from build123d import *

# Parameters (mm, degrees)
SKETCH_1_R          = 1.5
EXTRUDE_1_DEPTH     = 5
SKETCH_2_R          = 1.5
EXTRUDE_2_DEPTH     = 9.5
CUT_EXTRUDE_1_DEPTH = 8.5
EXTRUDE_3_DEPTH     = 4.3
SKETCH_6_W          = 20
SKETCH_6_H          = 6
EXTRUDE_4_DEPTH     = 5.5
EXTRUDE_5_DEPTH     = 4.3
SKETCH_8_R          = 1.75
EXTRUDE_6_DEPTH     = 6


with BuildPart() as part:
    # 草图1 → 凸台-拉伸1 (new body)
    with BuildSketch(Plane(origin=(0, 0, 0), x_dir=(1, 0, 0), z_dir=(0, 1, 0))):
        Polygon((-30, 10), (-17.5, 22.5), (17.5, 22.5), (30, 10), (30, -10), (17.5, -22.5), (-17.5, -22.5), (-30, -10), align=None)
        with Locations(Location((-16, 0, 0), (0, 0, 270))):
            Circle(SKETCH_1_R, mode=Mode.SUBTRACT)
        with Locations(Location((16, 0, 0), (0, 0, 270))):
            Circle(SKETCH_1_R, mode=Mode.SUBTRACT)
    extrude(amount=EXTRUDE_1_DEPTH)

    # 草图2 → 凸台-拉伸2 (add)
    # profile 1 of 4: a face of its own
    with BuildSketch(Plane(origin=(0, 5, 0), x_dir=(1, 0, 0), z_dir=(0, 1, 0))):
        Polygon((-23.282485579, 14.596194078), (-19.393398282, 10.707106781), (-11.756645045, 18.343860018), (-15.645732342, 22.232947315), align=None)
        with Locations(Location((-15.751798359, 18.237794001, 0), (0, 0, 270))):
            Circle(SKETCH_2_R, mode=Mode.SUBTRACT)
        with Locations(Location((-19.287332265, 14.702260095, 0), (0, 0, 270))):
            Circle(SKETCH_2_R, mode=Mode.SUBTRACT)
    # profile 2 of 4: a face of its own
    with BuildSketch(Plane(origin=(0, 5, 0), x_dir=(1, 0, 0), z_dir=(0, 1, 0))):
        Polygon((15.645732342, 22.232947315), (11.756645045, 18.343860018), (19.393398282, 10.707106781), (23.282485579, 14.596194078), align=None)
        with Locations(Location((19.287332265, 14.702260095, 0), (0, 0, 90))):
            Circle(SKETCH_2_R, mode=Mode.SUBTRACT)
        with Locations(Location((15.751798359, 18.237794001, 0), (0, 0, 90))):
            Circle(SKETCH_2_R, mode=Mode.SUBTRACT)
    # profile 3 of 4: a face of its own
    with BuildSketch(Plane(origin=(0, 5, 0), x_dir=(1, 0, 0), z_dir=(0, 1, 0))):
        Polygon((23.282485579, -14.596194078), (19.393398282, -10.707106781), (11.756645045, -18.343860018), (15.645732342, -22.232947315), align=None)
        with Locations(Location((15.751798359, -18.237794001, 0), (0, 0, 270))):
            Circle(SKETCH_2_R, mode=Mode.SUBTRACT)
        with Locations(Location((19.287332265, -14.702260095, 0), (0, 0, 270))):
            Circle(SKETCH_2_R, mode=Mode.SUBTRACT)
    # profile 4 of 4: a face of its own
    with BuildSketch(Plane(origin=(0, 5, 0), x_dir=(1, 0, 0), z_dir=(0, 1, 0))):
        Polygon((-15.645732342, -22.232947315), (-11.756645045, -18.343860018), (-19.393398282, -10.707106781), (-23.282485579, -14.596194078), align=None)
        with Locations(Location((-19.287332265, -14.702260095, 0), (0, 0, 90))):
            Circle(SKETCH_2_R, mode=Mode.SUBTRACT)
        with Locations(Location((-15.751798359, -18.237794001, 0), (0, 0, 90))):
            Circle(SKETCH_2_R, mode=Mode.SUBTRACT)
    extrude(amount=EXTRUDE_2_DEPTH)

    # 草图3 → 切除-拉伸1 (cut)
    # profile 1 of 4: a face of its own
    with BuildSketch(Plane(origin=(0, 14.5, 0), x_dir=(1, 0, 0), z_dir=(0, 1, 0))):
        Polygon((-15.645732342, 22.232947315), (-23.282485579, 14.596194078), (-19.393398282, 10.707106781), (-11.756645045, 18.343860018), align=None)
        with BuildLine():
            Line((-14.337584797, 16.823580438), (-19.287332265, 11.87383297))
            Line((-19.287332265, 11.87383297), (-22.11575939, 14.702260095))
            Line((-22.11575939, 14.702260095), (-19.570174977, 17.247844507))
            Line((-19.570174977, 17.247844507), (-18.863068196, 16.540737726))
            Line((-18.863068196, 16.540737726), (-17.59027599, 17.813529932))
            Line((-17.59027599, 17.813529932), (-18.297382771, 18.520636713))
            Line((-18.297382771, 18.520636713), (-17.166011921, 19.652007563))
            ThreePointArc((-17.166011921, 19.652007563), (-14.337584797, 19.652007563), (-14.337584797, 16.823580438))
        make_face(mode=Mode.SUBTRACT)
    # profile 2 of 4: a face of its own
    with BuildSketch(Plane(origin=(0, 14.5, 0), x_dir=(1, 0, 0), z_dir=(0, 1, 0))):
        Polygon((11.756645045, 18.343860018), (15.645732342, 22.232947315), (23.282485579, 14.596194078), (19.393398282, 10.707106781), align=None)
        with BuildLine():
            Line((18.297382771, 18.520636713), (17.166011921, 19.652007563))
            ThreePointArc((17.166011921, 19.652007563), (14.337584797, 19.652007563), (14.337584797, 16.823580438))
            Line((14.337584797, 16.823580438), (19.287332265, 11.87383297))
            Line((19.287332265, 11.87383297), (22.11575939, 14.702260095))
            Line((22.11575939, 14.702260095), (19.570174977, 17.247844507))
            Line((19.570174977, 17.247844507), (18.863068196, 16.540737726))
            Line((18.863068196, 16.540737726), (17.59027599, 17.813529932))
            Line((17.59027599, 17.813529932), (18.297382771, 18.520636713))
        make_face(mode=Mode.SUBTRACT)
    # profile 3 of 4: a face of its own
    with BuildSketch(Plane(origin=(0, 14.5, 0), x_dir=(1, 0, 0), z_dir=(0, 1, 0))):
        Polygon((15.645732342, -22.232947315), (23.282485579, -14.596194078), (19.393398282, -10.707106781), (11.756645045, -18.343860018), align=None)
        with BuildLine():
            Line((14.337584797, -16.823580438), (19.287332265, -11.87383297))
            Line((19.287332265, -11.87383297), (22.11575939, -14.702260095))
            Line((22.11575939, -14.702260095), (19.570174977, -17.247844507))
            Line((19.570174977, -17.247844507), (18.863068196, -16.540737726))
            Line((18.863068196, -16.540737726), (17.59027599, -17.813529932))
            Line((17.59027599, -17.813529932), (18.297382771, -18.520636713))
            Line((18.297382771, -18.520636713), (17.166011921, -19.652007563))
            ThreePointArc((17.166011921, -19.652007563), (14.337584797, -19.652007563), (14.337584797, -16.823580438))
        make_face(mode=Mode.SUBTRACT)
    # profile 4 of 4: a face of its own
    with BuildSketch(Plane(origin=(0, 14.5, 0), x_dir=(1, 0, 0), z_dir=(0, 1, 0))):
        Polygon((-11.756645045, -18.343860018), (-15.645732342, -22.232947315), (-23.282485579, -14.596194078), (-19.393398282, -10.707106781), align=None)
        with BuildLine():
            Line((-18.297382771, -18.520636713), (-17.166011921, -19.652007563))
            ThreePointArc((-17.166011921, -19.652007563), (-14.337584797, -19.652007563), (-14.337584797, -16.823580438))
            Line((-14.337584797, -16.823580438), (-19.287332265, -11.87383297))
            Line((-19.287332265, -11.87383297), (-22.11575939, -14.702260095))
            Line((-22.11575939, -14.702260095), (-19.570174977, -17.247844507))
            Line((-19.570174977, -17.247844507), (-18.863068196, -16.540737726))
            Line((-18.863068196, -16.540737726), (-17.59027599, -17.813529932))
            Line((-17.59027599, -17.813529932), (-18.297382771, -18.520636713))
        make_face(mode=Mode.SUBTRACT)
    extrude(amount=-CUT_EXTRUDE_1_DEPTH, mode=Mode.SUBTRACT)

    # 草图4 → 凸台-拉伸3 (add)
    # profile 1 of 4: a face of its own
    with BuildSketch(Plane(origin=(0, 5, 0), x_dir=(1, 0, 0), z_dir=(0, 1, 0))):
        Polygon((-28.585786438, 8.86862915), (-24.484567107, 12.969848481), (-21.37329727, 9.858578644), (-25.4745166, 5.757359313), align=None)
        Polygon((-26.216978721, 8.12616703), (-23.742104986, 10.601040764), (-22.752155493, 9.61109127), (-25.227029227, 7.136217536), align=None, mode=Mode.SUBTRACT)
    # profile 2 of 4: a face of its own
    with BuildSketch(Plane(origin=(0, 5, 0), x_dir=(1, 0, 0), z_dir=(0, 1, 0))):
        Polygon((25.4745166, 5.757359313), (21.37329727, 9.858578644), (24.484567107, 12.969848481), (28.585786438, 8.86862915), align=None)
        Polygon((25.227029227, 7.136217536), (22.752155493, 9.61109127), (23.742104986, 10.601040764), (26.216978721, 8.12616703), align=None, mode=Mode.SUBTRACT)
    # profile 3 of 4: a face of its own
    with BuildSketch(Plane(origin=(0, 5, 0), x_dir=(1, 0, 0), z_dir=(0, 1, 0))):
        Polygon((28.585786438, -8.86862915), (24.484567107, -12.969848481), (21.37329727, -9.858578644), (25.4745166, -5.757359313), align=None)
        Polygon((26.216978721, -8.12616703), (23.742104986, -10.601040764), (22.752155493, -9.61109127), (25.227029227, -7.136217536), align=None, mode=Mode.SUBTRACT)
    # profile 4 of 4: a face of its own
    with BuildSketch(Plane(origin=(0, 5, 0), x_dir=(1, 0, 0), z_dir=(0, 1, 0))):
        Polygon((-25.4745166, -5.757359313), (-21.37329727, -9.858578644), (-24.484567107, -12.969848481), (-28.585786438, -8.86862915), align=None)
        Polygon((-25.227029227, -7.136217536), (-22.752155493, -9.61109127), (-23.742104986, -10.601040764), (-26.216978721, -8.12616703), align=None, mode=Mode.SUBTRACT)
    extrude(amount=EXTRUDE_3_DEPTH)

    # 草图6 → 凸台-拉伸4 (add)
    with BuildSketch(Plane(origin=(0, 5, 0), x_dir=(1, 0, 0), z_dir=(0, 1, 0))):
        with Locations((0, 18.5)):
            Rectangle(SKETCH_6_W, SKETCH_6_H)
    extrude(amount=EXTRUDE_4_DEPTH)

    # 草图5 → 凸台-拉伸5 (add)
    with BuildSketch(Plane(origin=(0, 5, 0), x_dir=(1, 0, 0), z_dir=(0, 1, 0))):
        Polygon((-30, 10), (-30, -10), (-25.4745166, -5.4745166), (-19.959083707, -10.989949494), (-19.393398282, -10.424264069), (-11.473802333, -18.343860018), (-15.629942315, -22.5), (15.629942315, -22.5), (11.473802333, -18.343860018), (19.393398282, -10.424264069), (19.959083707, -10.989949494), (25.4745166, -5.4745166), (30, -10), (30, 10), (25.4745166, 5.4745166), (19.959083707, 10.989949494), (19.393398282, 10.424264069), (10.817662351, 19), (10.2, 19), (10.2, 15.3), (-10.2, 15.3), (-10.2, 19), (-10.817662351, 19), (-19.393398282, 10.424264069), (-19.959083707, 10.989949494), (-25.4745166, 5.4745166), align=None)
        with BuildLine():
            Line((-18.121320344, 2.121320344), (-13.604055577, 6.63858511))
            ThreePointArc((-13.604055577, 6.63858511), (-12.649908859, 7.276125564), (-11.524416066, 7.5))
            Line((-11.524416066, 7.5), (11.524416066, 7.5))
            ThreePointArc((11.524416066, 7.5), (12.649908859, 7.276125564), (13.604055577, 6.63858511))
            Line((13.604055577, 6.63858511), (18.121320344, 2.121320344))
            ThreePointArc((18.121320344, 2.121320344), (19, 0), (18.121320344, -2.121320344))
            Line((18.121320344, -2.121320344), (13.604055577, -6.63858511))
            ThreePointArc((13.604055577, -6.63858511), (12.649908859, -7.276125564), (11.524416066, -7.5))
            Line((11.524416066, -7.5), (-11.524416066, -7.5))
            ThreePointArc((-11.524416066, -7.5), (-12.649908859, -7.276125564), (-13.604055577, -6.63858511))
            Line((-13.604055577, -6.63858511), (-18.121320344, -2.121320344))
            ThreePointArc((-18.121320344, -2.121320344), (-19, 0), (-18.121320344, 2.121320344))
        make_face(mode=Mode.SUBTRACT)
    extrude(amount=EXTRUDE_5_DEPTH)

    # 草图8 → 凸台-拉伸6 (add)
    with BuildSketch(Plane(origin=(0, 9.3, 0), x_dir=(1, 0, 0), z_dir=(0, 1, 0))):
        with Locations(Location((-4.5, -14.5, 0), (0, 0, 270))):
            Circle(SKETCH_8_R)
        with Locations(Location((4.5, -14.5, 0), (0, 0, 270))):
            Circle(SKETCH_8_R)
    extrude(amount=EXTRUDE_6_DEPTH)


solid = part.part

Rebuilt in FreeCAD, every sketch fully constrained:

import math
import FreeCAD as App
import Part
import Sketcher

doc = App.newDocument("Part")
body = doc.addObject("PartDesign::Body", "Body")

sketch1 = body.newObject("Sketcher::SketchObject", "Sketch")
sketch1.AttachmentSupport = (doc.getObject("XZ_Plane"), [""])
sketch1.MapMode = "FlatFace"
sketch1.addGeometry([
    Part.LineSegment(App.Vector(-17.5, -22.5, 0), App.Vector(-30, -10, 0)),
    Part.LineSegment(App.Vector(-30, -10, 0), App.Vector(-30, 10, 0)),
    Part.LineSegment(App.Vector(-30, 10, 0), App.Vector(-17.5, 22.5, 0)),
    Part.LineSegment(App.Vector(-17.5, 22.5, 0), App.Vector(17.5, 22.5, 0)),
    Part.LineSegment(App.Vector(17.5, 22.5, 0), App.Vector(30, 10, 0)),
    Part.LineSegment(App.Vector(30, 10, 0), App.Vector(30, -10, 0)),
    Part.LineSegment(App.Vector(30, -10, 0), App.Vector(17.5, -22.5, 0)),
    Part.LineSegment(App.Vector(17.5, -22.5, 0), App.Vector(-17.5, -22.5, 0)),
    Part.Circle(App.Vector(16, 0, 0), App.Vector(0, 0, 1), 1.5),
    Part.Circle(App.Vector(-16, 0, 0), App.Vector(0, 0, 1), 1.5),
], False)
sketch1.addConstraint([
    Sketcher.Constraint("Coincident", 0, 2, 1, 1),
    Sketcher.Constraint("Coincident", 1, 2, 2, 1),
    Sketcher.Constraint("Coincident", 2, 2, 3, 1),
    Sketcher.Constraint("Coincident", 3, 2, 4, 1),
    Sketcher.Constraint("Coincident", 4, 2, 5, 1),
    Sketcher.Constraint("Coincident", 5, 2, 6, 1),
    Sketcher.Constraint("Coincident", 6, 2, 7, 1),
    Sketcher.Constraint("Coincident", 7, 2, 0, 1),
    Sketcher.Constraint("Vertical", 1),
    Sketcher.Constraint("Horizontal", 3),
    Sketcher.Constraint("Vertical", 5),
    Sketcher.Constraint("Horizontal", 7),
    Sketcher.Constraint("Equal", 8, 9),
    Sketcher.Constraint("Symmetric", 8, 3, 9, 3, -1, 1),
    Sketcher.Constraint("Symmetric", 0, 2, 4, 2, -1, 1),
    Sketcher.Constraint("Symmetric", 2, 2, 6, 2, -1, 1),
    Sketcher.Constraint("PointOnObject", 8, 3, -1),
    Sketcher.Constraint("Perpendicular", 0, 2),
    Sketcher.Constraint("Perpendicular", 2, 4),
    Sketcher.Constraint("Perpendicular", 4, 6),
    Sketcher.Constraint("Horizontal", 1, 2, 4, 2),
    Sketcher.Constraint("Vertical", 3, 2, 6, 2),
    Sketcher.Constraint("Diameter", 8, 3.0),
    Sketcher.Constraint("DistanceX", 3, 1, 3, 2, 35.0),
    Sketcher.Constraint("DistanceY", 1, 1, 1, 2, 20.0),
    Sketcher.Constraint("DistanceX", -1, 1, 8, 3, 16.0),
    Sketcher.Constraint("DistanceX", 0, 2, -1, 1, 30.0),
])
pad1 = body.newObject("PartDesign::Pad", "Pad")
pad1.Profile = sketch1
pad1.Length = 5
pad1.Reversed = True

sketch2 = body.newObject("Sketcher::SketchObject", "Sketch001")
sketch2.AttachmentSupport = (doc.getObject("XZ_Plane"), [""])
sketch2.MapMode = "FlatFace"
sketch2.AttachmentOffset = App.Placement(App.Vector(0, 0, -5), App.Rotation())
sketch2.addGeometry([
    Part.LineSegment(App.Vector(-23.3, -14.6, 0), App.Vector(-19.4, -10.7, 0)),
    Part.LineSegment(App.Vector(-19.4, -10.7, 0), App.Vector(-11.8, -18.3, 0)),
    Part.LineSegment(App.Vector(-11.8, -18.3, 0), App.Vector(-15.6, -22.2, 0)),
    Part.LineSegment(App.Vector(-15.6, -22.2, 0), App.Vector(-23.3, -14.6, 0)),
    Part.Circle(App.Vector(-19.3, -14.7, 0), App.Vector(0, 0, 1), 1.5),
    Part.Circle(App.Vector(-15.8, -18.2, 0), App.Vector(0, 0, 1), 1.5),
    Part.LineSegment(App.Vector(15.6, -22.2, 0), App.Vector(11.8, -18.3, 0)),
    Part.LineSegment(App.Vector(11.8, -18.3, 0), App.Vector(19.4, -10.7, 0)),
    Part.LineSegment(App.Vector(19.4, -10.7, 0), App.Vector(23.3, -14.6, 0)),
    Part.LineSegment(App.Vector(23.3, -14.6, 0), App.Vector(15.6, -22.2, 0)),
    Part.Circle(App.Vector(19.3, -14.7, 0), App.Vector(0, 0, 1), 1.5),
    Part.Circle(App.Vector(15.8, -18.2, 0), App.Vector(0, 0, 1), 1.5),
    Part.LineSegment(App.Vector(23.3, 14.6, 0), App.Vector(19.4, 10.7, 0)),
    Part.LineSegment(App.Vector(19.4, 10.7, 0), App.Vector(11.8, 18.3, 0)),
    Part.LineSegment(App.Vector(11.8, 18.3, 0), App.Vector(15.6, 22.2, 0)),
    Part.LineSegment(App.Vector(15.6, 22.2, 0), App.Vector(23.3, 14.6, 0)),
    Part.Circle(App.Vector(15.8, 18.2, 0), App.Vector(0, 0, 1), 1.5),
    Part.Circle(App.Vector(19.3, 14.7, 0), App.Vector(0, 0, 1), 1.5),
    Part.LineSegment(App.Vector(-15.6, 22.2, 0), App.Vector(-11.8, 18.3, 0)),
    Part.LineSegment(App.Vector(-11.8, 18.3, 0), App.Vector(-19.4, 10.7, 0)),
    Part.LineSegment(App.Vector(-19.4, 10.7, 0), App.Vector(-23.3, 14.6, 0)),
    Part.LineSegment(App.Vector(-23.3, 14.6, 0), App.Vector(-15.6, 22.2, 0)),
    Part.Circle(App.Vector(-15.8, 18.2, 0), App.Vector(0, 0, 1), 1.5),
    Part.Circle(App.Vector(-19.3, 14.7, 0), App.Vector(0, 0, 1), 1.5),
], False)
sketch2.addConstraint([
    Sketcher.Constraint("Coincident", 0, 2, 1, 1),
    Sketcher.Constraint("Coincident", 1, 2, 2, 1),
    Sketcher.Constraint("Coincident", 2, 2, 3, 1),
    Sketcher.Constraint("Coincident", 3, 2, 0, 1),
    Sketcher.Constraint("Coincident", 6, 2, 7, 1),
    Sketcher.Constraint("Coincident", 7, 2, 8, 1),
    Sketcher.Constraint("Coincident", 8, 2, 9, 1),
    Sketcher.Constraint("Coincident", 9, 2, 6, 1),
    Sketcher.Constraint("Coincident", 12, 2, 13, 1),
    Sketcher.Constraint("Coincident", 13, 2, 14, 1),
    Sketcher.Constraint("Coincident", 14, 2, 15, 1),
    Sketcher.Constraint("Coincident", 15, 2, 12, 1),
    Sketcher.Constraint("Coincident", 18, 2, 19, 1),
    Sketcher.Constraint("Coincident", 19, 2, 20, 1),
    Sketcher.Constraint("Coincident", 20, 2, 21, 1),
    Sketcher.Constraint("Coincident", 21, 2, 18, 1),
    Sketcher.Constraint("Equal", 4, 5),
    Sketcher.Constraint("Equal", 5, 10),
    Sketcher.Constraint("Equal", 10, 11),
    Sketcher.Constraint("Equal", 11, 16),
    Sketcher.Constraint("Equal", 16, 17),
    Sketcher.Constraint("Equal", 17, 22),
    Sketcher.Constraint("Equal", 22, 23),
    Sketcher.Constraint("Symmetric", 5, 3, 16, 3, -1, 1),
    Sketcher.Constraint("Symmetric", 4, 3, 17, 3, -1, 1),
    Sketcher.Constraint("Symmetric", 11, 3, 22, 3, -1, 1),
    Sketcher.Constraint("Symmetric", 10, 3, 23, 3, -1, 1),
    Sketcher.Constraint("Symmetric", 0, 2, 12, 2, -1, 1),
    Sketcher.Constraint("Symmetric", 1, 2, 13, 2, -1, 1),
    Sketcher.Constraint("Symmetric", 2, 2, 14, 2, -1, 1),
    Sketcher.Constraint("Symmetric", 3, 2, 15, 2, -1, 1),
    Sketcher.Constraint("Symmetric", 6, 2, 18, 2, -1, 1),
    Sketcher.Constraint("Symmetric", 7, 2, 19, 2, -1, 1),
    Sketcher.Constraint("Symmetric", 8, 2, 20, 2, -1, 1),
    Sketcher.Constraint("Symmetric", 9, 2, 21, 2, -1, 1),
    Sketcher.Constraint("Symmetric", 4, 3, 10, 3, -2),
    Sketcher.Constraint("Symmetric", 5, 3, 11, 3, -2),
    Sketcher.Constraint("Symmetric", 1, 2, 6, 2, -2),
    Sketcher.Constraint("Symmetric", 0, 2, 7, 2, -2),
    Sketcher.Constraint("Symmetric", 3, 2, 8, 2, -2),
    Sketcher.Constraint("Symmetric", 2, 2, 9, 2, -2),
    Sketcher.Constraint("Perpendicular", 0, 1),
    Sketcher.Constraint("Perpendicular", 1, 2),
    Sketcher.Constraint("Perpendicular", 2, 3),
    Sketcher.Constraint("Parallel", 3, 6),
    Sketcher.Constraint("Diameter", 4, 3.0),
    Sketcher.Constraint("Distance", 0, 5.5),
    Sketcher.Constraint("Distance", 1, 10.8),
    Sketcher.Constraint("DistanceX", 5, 3, -1, 1, 15.751798),
    Sketcher.Constraint("DistanceX", 0, 2, -1, 1, 19.393398),
    Sketcher.Constraint("DistanceY", 0, 2, 22, 3, 28.944901),
    Sketcher.Constraint("DistanceY", 1, 2, 4, 3, 3.6416),
    Sketcher.Constraint("DistanceX", 4, 3, 2, 2, 3.6416),
    Sketcher.Constraint("DistanceY", 5, 3, 3, 2, 3.6416),
])
pad2 = body.newObject("PartDesign::Pad", "Pad001")
pad2.Profile = sketch2
pad2.Length = 9.5
pad2.Reversed = True

sketch3 = body.newObject("Sketcher::SketchObject", "Sketch002")
sketch3.AttachmentSupport = (doc.getObject("XZ_Plane"), [""])
sketch3.MapMode = "FlatFace"
sketch3.AttachmentOffset = App.Placement(App.Vector(0, 0, -14.5), App.Rotation())
sketch3.addGeometry([
    Part.LineSegment(App.Vector(-15.6, -22.2, 0), App.Vector(-23.3, -14.6, 0)),
    Part.LineSegment(App.Vector(-23.3, -14.6, 0), App.Vector(-19.4, -10.7, 0)),
    Part.LineSegment(App.Vector(-19.4, -10.7, 0), App.Vector(-11.8, -18.3, 0)),
    Part.LineSegment(App.Vector(-11.8, -18.3, 0), App.Vector(-15.6, -22.2, 0)),
    Part.ArcOfCircle(Part.Circle(App.Vector(-15.8, -18.2, 0), App.Vector(0, 0, 1), 2), math.radians(-135), math.radians(45)),
    Part.LineSegment(App.Vector(-14.3, -16.8, 0), App.Vector(-19.3, -11.9, 0)),
    Part.LineSegment(App.Vector(-19.3, -11.9, 0), App.Vector(-22.1, -14.7, 0)),
    Part.LineSegment(App.Vector(-22.1, -14.7, 0), App.Vector(-19.6, -17.2, 0)),
    Part.LineSegment(App.Vector(-19.6, -17.2, 0), App.Vector(-18.9, -16.5, 0)),
    Part.LineSegment(App.Vector(-18.9, -16.5, 0), App.Vector(-17.6, -17.8, 0)),
    Part.LineSegment(App.Vector(-17.6, -17.8, 0), App.Vector(-18.3, -18.5, 0)),
    Part.LineSegment(App.Vector(-18.3, -18.5, 0), App.Vector(-17.2, -19.7, 0)),
    Part.LineSegment(App.Vector(15.6, -22.2, 0), App.Vector(11.8, -18.3, 0)),
    Part.LineSegment(App.Vector(11.8, -18.3, 0), App.Vector(19.4, -10.7, 0)),
    Part.LineSegment(App.Vector(19.4, -10.7, 0), App.Vector(23.3, -14.6, 0)),
    Part.LineSegment(App.Vector(23.3, -14.6, 0), App.Vector(15.6, -22.2, 0)),
    Part.LineSegment(App.Vector(18.3, -18.5, 0), App.Vector(17.6, -17.8, 0)),
    Part.LineSegment(App.Vector(17.6, -17.8, 0), App.Vector(18.9, -16.5, 0)),
    Part.LineSegment(App.Vector(18.9, -16.5, 0), App.Vector(19.6, -17.2, 0)),
    Part.LineSegment(App.Vector(19.6, -17.2, 0), App.Vector(22.1, -14.7, 0)),
    Part.LineSegment(App.Vector(22.1, -14.7, 0), App.Vector(19.3, -11.9, 0)),
    Part.LineSegment(App.Vector(19.3, -11.9, 0), App.Vector(14.3, -16.8, 0)),
    Part.ArcOfCircle(Part.Circle(App.Vector(15.8, -18.2, 0), App.Vector(0, 0, 1), 2), math.radians(135), math.radians(315)),
    Part.LineSegment(App.Vector(17.2, -19.7, 0), App.Vector(18.3, -18.5, 0)),
    Part.LineSegment(App.Vector(15.6, 22.2, 0), App.Vector(23.3, 14.6, 0)),
    Part.LineSegment(App.Vector(23.3, 14.6, 0), App.Vector(19.4, 10.7, 0)),
    Part.LineSegment(App.Vector(19.4, 10.7, 0), App.Vector(11.8, 18.3, 0)),
    Part.LineSegment(App.Vector(11.8, 18.3, 0), App.Vector(15.6, 22.2, 0)),
    Part.ArcOfCircle(Part.Circle(App.Vector(15.8, 18.2, 0), App.Vector(0, 0, 1), 2), math.radians(45), math.radians(225)),
    Part.LineSegment(App.Vector(14.3, 16.8, 0), App.Vector(19.3, 11.9, 0)),
    Part.LineSegment(App.Vector(19.3, 11.9, 0), App.Vector(22.1, 14.7, 0)),
    Part.LineSegment(App.Vector(22.1, 14.7, 0), App.Vector(19.6, 17.2, 0)),
    Part.LineSegment(App.Vector(19.6, 17.2, 0), App.Vector(18.9, 16.5, 0)),
    Part.LineSegment(App.Vector(18.9, 16.5, 0), App.Vector(17.6, 17.8, 0)),
    Part.LineSegment(App.Vector(17.6, 17.8, 0), App.Vector(18.3, 18.5, 0)),
    Part.LineSegment(App.Vector(18.3, 18.5, 0), App.Vector(17.2, 19.7, 0)),
    Part.LineSegment(App.Vector(-15.6, 22.2, 0), App.Vector(-11.8, 18.3, 0)),
    Part.LineSegment(App.Vector(-11.8, 18.3, 0), App.Vector(-19.4, 10.7, 0)),
    Part.LineSegment(App.Vector(-19.4, 10.7, 0), App.Vector(-23.3, 14.6, 0)),
    Part.LineSegment(App.Vector(-23.3, 14.6, 0), App.Vector(-15.6, 22.2, 0)),
    Part.LineSegment(App.Vector(-18.3, 18.5, 0), App.Vector(-17.6, 17.8, 0)),
    Part.LineSegment(App.Vector(-17.6, 17.8, 0), App.Vector(-18.9, 16.5, 0)),
    Part.LineSegment(App.Vector(-18.9, 16.5, 0), App.Vector(-19.6, 17.2, 0)),
    Part.LineSegment(App.Vector(-19.6, 17.2, 0), App.Vector(-22.1, 14.7, 0)),
    Part.LineSegment(App.Vector(-22.1, 14.7, 0), App.Vector(-19.3, 11.9, 0)),
    Part.LineSegment(App.Vector(-19.3, 11.9, 0), App.Vector(-14.3, 16.8, 0)),
    Part.ArcOfCircle(Part.Circle(App.Vector(-15.8, 18.2, 0), App.Vector(0, 0, 1), 2), math.radians(-45), math.radians(135)),
    Part.LineSegment(App.Vector(-17.2, 19.7, 0), App.Vector(-18.3, 18.5, 0)),
], False)
sketch3.addConstraint([
    Sketcher.Constraint("Coincident", 0, 2, 1, 1),
    Sketcher.Constraint("Coincident", 1, 2, 2, 1),
    Sketcher.Constraint("Coincident", 2, 2, 3, 1),
    Sketcher.Constraint("Coincident", 3, 2, 0, 1),
    Sketcher.Constraint("Tangent", 4, 2, 5, 1),
    Sketcher.Constraint("Coincident", 5, 2, 6, 1),
    Sketcher.Constraint("Coincident", 6, 2, 7, 1),
    Sketcher.Constraint("Coincident", 7, 2, 8, 1),
    Sketcher.Constraint("Coincident", 8, 2, 9, 1),
    Sketcher.Constraint("Coincident", 9, 2, 10, 1),
    Sketcher.Constraint("Coincident", 10, 2, 11, 1),
    Sketcher.Constraint("Tangent", 11, 2, 4, 1),
    Sketcher.Constraint("Coincident", 12, 2, 13, 1),
    Sketcher.Constraint("Coincident", 13, 2, 14, 1),
    Sketcher.Constraint("Coincident", 14, 2, 15, 1),
    Sketcher.Constraint("Coincident", 15, 2, 12, 1),
    Sketcher.Constraint("Coincident", 16, 2, 17, 1),
    Sketcher.Constraint("Coincident", 17, 2, 18, 1),
    Sketcher.Constraint("Coincident", 18, 2, 19, 1),
    Sketcher.Constraint("Coincident", 19, 2, 20, 1),
    Sketcher.Constraint("Coincident", 20, 2, 21, 1),
    Sketcher.Constraint("Tangent", 21, 2, 22, 1),
    Sketcher.Constraint("Tangent", 22, 2, 23, 1),
    Sketcher.Constraint("Coincident", 23, 2, 16, 1),
    Sketcher.Constraint("Coincident", 24, 2, 25, 1),
    Sketcher.Constraint("Coincident", 25, 2, 26, 1),
    Sketcher.Constraint("Coincident", 26, 2, 27, 1),
    Sketcher.Constraint("Coincident", 27, 2, 24, 1),
    Sketcher.Constraint("Tangent", 28, 2, 29, 1),
    Sketcher.Constraint("Coincident", 29, 2, 30, 1),
    Sketcher.Constraint("Coincident", 30, 2, 31, 1),
    Sketcher.Constraint("Coincident", 31, 2, 32, 1),
    Sketcher.Constraint("Coincident", 32, 2, 33, 1),
    Sketcher.Constraint("Coincident", 33, 2, 34, 1),
    Sketcher.Constraint("Coincident", 34, 2, 35, 1),
    Sketcher.Constraint("Tangent", 35, 2, 28, 1),
    Sketcher.Constraint("Coincident", 36, 2, 37, 1),
    Sketcher.Constraint("Coincident", 37, 2, 38, 1),
    Sketcher.Constraint("Coincident", 38, 2, 39, 1),
    Sketcher.Constraint("Coincident", 39, 2, 36, 1),
    Sketcher.Constraint("Coincident", 40, 2, 41, 1),
    Sketcher.Constraint("Coincident", 41, 2, 42, 1),
    Sketcher.Constraint("Coincident", 42, 2, 43, 1),
    Sketcher.Constraint("Coincident", 43, 2, 44, 1),
    Sketcher.Constraint("Coincident", 44, 2, 45, 1),
    Sketcher.Constraint("Tangent", 45, 2, 46, 1),
    Sketcher.Constraint("Tangent", 46, 2, 47, 1),
    Sketcher.Constraint("Coincident", 47, 2, 40, 1),
    Sketcher.Constraint("Equal", 4, 22),
    Sketcher.Constraint("Equal", 22, 28),
    Sketcher.Constraint("Equal", 28, 46),
    Sketcher.Constraint("Symmetric", 4, 3, 28, 3, -1, 1),
    Sketcher.Constraint("Symmetric", 22, 3, 46, 3, -1, 1),
    Sketcher.Constraint("Symmetric", 0, 2, 24, 2, -1, 1),
    Sketcher.Constraint("Symmetric", 1, 2, 25, 2, -1, 1),
    Sketcher.Constraint("Symmetric", 2, 2, 26, 2, -1, 1),
    Sketcher.Constraint("Symmetric", 3, 2, 27, 2, -1, 1),
    Sketcher.Constraint("Symmetric", 5, 2, 29, 2, -1, 1),
    Sketcher.Constraint("Symmetric", 6, 2, 30, 2, -1, 1),
    Sketcher.Constraint("Symmetric", 7, 2, 31, 2, -1, 1),
    Sketcher.Constraint("Symmetric", 8, 2, 32, 2, -1, 1),
    Sketcher.Constraint("Symmetric", 9, 2, 33, 2, -1, 1),
    Sketcher.Constraint("Symmetric", 10, 2, 34, 2, -1, 1),
    Sketcher.Constraint("Symmetric", 12, 2, 36, 2, -1, 1),
    Sketcher.Constraint("Symmetric", 13, 2, 37, 2, -1, 1),
    Sketcher.Constraint("Symmetric", 14, 2, 38, 2, -1, 1),
    Sketcher.Constraint("Symmetric", 15, 2, 39, 2, -1, 1),
    Sketcher.Constraint("Symmetric", 16, 2, 40, 2, -1, 1),
    Sketcher.Constraint("Symmetric", 17, 2, 41, 2, -1, 1),
    Sketcher.Constraint("Symmetric", 18, 2, 42, 2, -1, 1),
    Sketcher.Constraint("Symmetric", 19, 2, 43, 2, -1, 1),
    Sketcher.Constraint("Symmetric", 20, 2, 44, 2, -1, 1),
    Sketcher.Constraint("Symmetric", 23, 2, 47, 2, -1, 1),
    Sketcher.Constraint("Symmetric", 4, 3, 22, 3, -2),
    Sketcher.Constraint("Symmetric", 2, 2, 12, 2, -2),
    Sketcher.Constraint("Symmetric", 1, 2, 13, 2, -2),
    Sketcher.Constraint("Symmetric", 0, 2, 14, 2, -2),
    Sketcher.Constraint("Symmetric", 3, 2, 15, 2, -2),
    Sketcher.Constraint("Symmetric", 9, 2, 16, 2, -2),
    Sketcher.Constraint("Symmetric", 8, 2, 17, 2, -2),
    Sketcher.Constraint("Symmetric", 7, 2, 18, 2, -2),
    Sketcher.Constraint("Symmetric", 6, 2, 19, 2, -2),
    Sketcher.Constraint("Symmetric", 5, 2, 20, 2, -2),
    Sketcher.Constraint("Symmetric", 10, 2, 23, 2, -2),
    Sketcher.Constraint("Perpendicular", 0, 1),
    Sketcher.Constraint("Perpendicular", 1, 2),
    Sketcher.Constraint("Perpendicular", 2, 3),
    Sketcher.Constraint("Perpendicular", 3, 5),
    Sketcher.Constraint("Perpendicular", 5, 6),
    Sketcher.Constraint("Perpendicular", 6, 7),
    Sketcher.Constraint("Perpendicular", 7, 8),
    Sketcher.Constraint("Perpendicular", 8, 9),
    Sketcher.Constraint("Perpendicular", 9, 10),
    Sketcher.Constraint("Perpendicular", 10, 11),
    Sketcher.Constraint("Parallel", 11, 12),
    Sketcher.Constraint("Equal", 8, 10),
    Sketcher.Constraint("Radius", 4, 2.0),
    Sketcher.Constraint("Distance", 5, 7.0),
    Sketcher.Constraint("Distance", 8, 1.0),
    Sketcher.Constraint("Distance", 0, 10.8),
    Sketcher.Constraint("Distance", 1, 5.5),
    Sketcher.Constraint("Distance", 7, 3.6),
    Sketcher.Constraint("Distance", 9, 1.8),
    Sketcher.Constraint("DistanceX", 4, 3, -1, 1, 15.751798),
    Sketcher.Constraint("DistanceX", 1, 2, -1, 1, 19.393398),
    Sketcher.Constraint("DistanceY", 4, 3, 0, 2, 3.6416),
    Sketcher.Constraint("DistanceY", 1, 2, 46, 3, 28.944901),
])
pocket1 = body.newObject("PartDesign::Pocket", "Pocket")
pocket1.Profile = sketch3
pocket1.Length = 8.5
pocket1.Reversed = True

sketch4 = body.newObject("Sketcher::SketchObject", "Sketch003")
sketch4.AttachmentSupport = (doc.getObject("XZ_Plane"), [""])
sketch4.MapMode = "FlatFace"
sketch4.AttachmentOffset = App.Placement(App.Vector(0, 0, -5), App.Rotation())
sketch4.addGeometry([
    Part.LineSegment(App.Vector(-24.5, -13, 0), App.Vector(-28.6, -8.9, 0)),
    Part.LineSegment(App.Vector(-28.6, -8.9, 0), App.Vector(-25.5, -5.8, 0)),
    Part.LineSegment(App.Vector(-25.5, -5.8, 0), App.Vector(-21.4, -9.9, 0)),
    Part.LineSegment(App.Vector(-21.4, -9.9, 0), App.Vector(-24.5, -13, 0)),
    Part.LineSegment(App.Vector(-26.2, -8.1, 0), App.Vector(-23.7, -10.6, 0)),
    Part.LineSegment(App.Vector(-23.7, -10.6, 0), App.Vector(-22.8, -9.6, 0)),
    Part.LineSegment(App.Vector(-22.8, -9.6, 0), App.Vector(-25.2, -7.1, 0)),
    Part.LineSegment(App.Vector(-25.2, -7.1, 0), App.Vector(-26.2, -8.1, 0)),
    Part.LineSegment(App.Vector(21.4, -9.9, 0), App.Vector(25.5, -5.8, 0)),
    Part.LineSegment(App.Vector(25.5, -5.8, 0), App.Vector(28.6, -8.9, 0)),
    Part.LineSegment(App.Vector(28.6, -8.9, 0), App.Vector(24.5, -13, 0)),
    Part.LineSegment(App.Vector(24.5, -13, 0), App.Vector(21.4, -9.9, 0)),
    Part.LineSegment(App.Vector(25.2, -7.1, 0), App.Vector(22.8, -9.6, 0)),
    Part.LineSegment(App.Vector(22.8, -9.6, 0), App.Vector(23.7, -10.6, 0)),
    Part.LineSegment(App.Vector(23.7, -10.6, 0), App.Vector(26.2, -8.1, 0)),
    Part.LineSegment(App.Vector(26.2, -8.1, 0), App.Vector(25.2, -7.1, 0)),
    Part.LineSegment(App.Vector(24.5, 13, 0), App.Vector(28.6, 8.9, 0)),
    Part.LineSegment(App.Vector(28.6, 8.9, 0), App.Vector(25.5, 5.8, 0)),
    Part.LineSegment(App.Vector(25.5, 5.8, 0), App.Vector(21.4, 9.9, 0)),
    Part.LineSegment(App.Vector(21.4, 9.9, 0), App.Vector(24.5, 13, 0)),
    Part.LineSegment(App.Vector(26.2, 8.1, 0), App.Vector(23.7, 10.6, 0)),
    Part.LineSegment(App.Vector(23.7, 10.6, 0), App.Vector(22.8, 9.6, 0)),
    Part.LineSegment(App.Vector(22.8, 9.6, 0), App.Vector(25.2, 7.1, 0)),
    Part.LineSegment(App.Vector(25.2, 7.1, 0), App.Vector(26.2, 8.1, 0)),
    Part.LineSegment(App.Vector(-21.4, 9.9, 0), App.Vector(-25.5, 5.8, 0)),
    Part.LineSegment(App.Vector(-25.5, 5.8, 0), App.Vector(-28.6, 8.9, 0)),
    Part.LineSegment(App.Vector(-28.6, 8.9, 0), App.Vector(-24.5, 13, 0)),
    Part.LineSegment(App.Vector(-24.5, 13, 0), App.Vector(-21.4, 9.9, 0)),
    Part.LineSegment(App.Vector(-25.2, 7.1, 0), App.Vector(-22.8, 9.6, 0)),
    Part.LineSegment(App.Vector(-22.8, 9.6, 0), App.Vector(-23.7, 10.6, 0)),
    Part.LineSegment(App.Vector(-23.7, 10.6, 0), App.Vector(-26.2, 8.1, 0)),
    Part.LineSegment(App.Vector(-26.2, 8.1, 0), App.Vector(-25.2, 7.1, 0)),
], False)
sketch4.addConstraint([
    Sketcher.Constraint("Coincident", 0, 2, 1, 1),
    Sketcher.Constraint("Coincident", 1, 2, 2, 1),
    Sketcher.Constraint("Coincident", 2, 2, 3, 1),
    Sketcher.Constraint("Coincident", 3, 2, 0, 1),
    Sketcher.Constraint("Coincident", 4, 2, 5, 1),
    Sketcher.Constraint("Coincident", 5, 2, 6, 1),
    Sketcher.Constraint("Coincident", 6, 2, 7, 1),
    Sketcher.Constraint("Coincident", 7, 2, 4, 1),
    Sketcher.Constraint("Coincident", 8, 2, 9, 1),
    Sketcher.Constraint("Coincident", 9, 2, 10, 1),
    Sketcher.Constraint("Coincident", 10, 2, 11, 1),
    Sketcher.Constraint("Coincident", 11, 2, 8, 1),
    Sketcher.Constraint("Coincident", 12, 2, 13, 1),
    Sketcher.Constraint("Coincident", 13, 2, 14, 1),
    Sketcher.Constraint("Coincident", 14, 2, 15, 1),
    Sketcher.Constraint("Coincident", 15, 2, 12, 1),
    Sketcher.Constraint("Coincident", 16, 2, 17, 1),
    Sketcher.Constraint("Coincident", 17, 2, 18, 1),
    Sketcher.Constraint("Coincident", 18, 2, 19, 1),
    Sketcher.Constraint("Coincident", 19, 2, 16, 1),
    Sketcher.Constraint("Coincident", 20, 2, 21, 1),
    Sketcher.Constraint("Coincident", 21, 2, 22, 1),
    Sketcher.Constraint("Coincident", 22, 2, 23, 1),
    Sketcher.Constraint("Coincident", 23, 2, 20, 1),
    Sketcher.Constraint("Coincident", 24, 2, 25, 1),
    Sketcher.Constraint("Coincident", 25, 2, 26, 1),
    Sketcher.Constraint("Coincident", 26, 2, 27, 1),
    Sketcher.Constraint("Coincident", 27, 2, 24, 1),
    Sketcher.Constraint("Coincident", 28, 2, 29, 1),
    Sketcher.Constraint("Coincident", 29, 2, 30, 1),
    Sketcher.Constraint("Coincident", 30, 2, 31, 1),
    Sketcher.Constraint("Coincident", 31, 2, 28, 1),
    Sketcher.Constraint("Symmetric", 0, 2, 16, 2, -1, 1),
    Sketcher.Constraint("Symmetric", 1, 2, 17, 2, -1, 1),
    Sketcher.Constraint("Symmetric", 2, 2, 18, 2, -1, 1),
    Sketcher.Constraint("Symmetric", 3, 2, 19, 2, -1, 1),
    Sketcher.Constraint("Symmetric", 4, 2, 20, 2, -1, 1),
    Sketcher.Constraint("Symmetric", 5, 2, 21, 2, -1, 1),
    Sketcher.Constraint("Symmetric", 6, 2, 22, 2, -1, 1),
    Sketcher.Constraint("Symmetric", 7, 2, 23, 2, -1, 1),
    Sketcher.Constraint("Symmetric", 8, 2, 24, 2, -1, 1),
    Sketcher.Constraint("Symmetric", 9, 2, 25, 2, -1, 1),
    Sketcher.Constraint("Symmetric", 10, 2, 26, 2, -1, 1),
    Sketcher.Constraint("Symmetric", 11, 2, 27, 2, -1, 1),
    Sketcher.Constraint("Symmetric", 12, 2, 28, 2, -1, 1),
    Sketcher.Constraint("Symmetric", 13, 2, 29, 2, -1, 1),
    Sketcher.Constraint("Symmetric", 14, 2, 30, 2, -1, 1),
    Sketcher.Constraint("Symmetric", 15, 2, 31, 2, -1, 1),
    Sketcher.Constraint("Symmetric", 1, 2, 8, 2, -2),
    Sketcher.Constraint("Symmetric", 0, 2, 9, 2, -2),
    Sketcher.Constraint("Symmetric", 3, 2, 10, 2, -2),
    Sketcher.Constraint("Symmetric", 2, 2, 11, 2, -2),
    Sketcher.Constraint("Symmetric", 5, 2, 12, 2, -2),
    Sketcher.Constraint("Symmetric", 4, 2, 13, 2, -2),
    Sketcher.Constraint("Symmetric", 7, 2, 14, 2, -2),
    Sketcher.Constraint("Symmetric", 6, 2, 15, 2, -2),
    Sketcher.Constraint("Perpendicular", 0, 1),
    Sketcher.Constraint("Perpendicular", 1, 2),
    Sketcher.Constraint("Perpendicular", 2, 3),
    Sketcher.Constraint("Perpendicular", 3, 4),
    Sketcher.Constraint("Perpendicular", 4, 5),
    Sketcher.Constraint("Perpendicular", 5, 6),
    Sketcher.Constraint("Perpendicular", 6, 7),
    Sketcher.Constraint("Parallel", 7, 8),
    Sketcher.Constraint("Distance", 0, 5.8),
    Sketcher.Constraint("Distance", 1, 4.4),
    Sketcher.Constraint("Distance", 4, 3.5),
    Sketcher.Constraint("Distance", 5, 1.4),
    Sketcher.Constraint("DistanceY", 8, 2, 20, 2, 16.3584),
    Sketcher.Constraint("DistanceY", 0, 2, -1, 1, 8.868629),
    Sketcher.Constraint("DistanceX", 6, 2, -1, 1, 25.227029),
    Sketcher.Constraint("DistanceX", 1, 2, 4, 2, 1.732412),
])
pad3 = body.newObject("PartDesign::Pad", "Pad002")
pad3.Profile = sketch4
pad3.Length = 4.3
pad3.Reversed = True

sketch5 = body.newObject("Sketcher::SketchObject", "Sketch004")
sketch5.AttachmentSupport = (doc.getObject("XZ_Plane"), [""])
sketch5.MapMode = "FlatFace"
sketch5.AttachmentOffset = App.Placement(App.Vector(0, 0, -5), App.Rotation())
sketch5.addGeometry([
    Part.LineSegment(App.Vector(-10, -22, 0), App.Vector(-10, -16, 0)),
    Part.LineSegment(App.Vector(-10, -16, 0), App.Vector(10, -16, 0)),
    Part.LineSegment(App.Vector(10, -16, 0), App.Vector(10, -22, 0)),
    Part.LineSegment(App.Vector(10, -22, 0), App.Vector(-10, -22, 0)),
], False)
sketch5.addConstraint([
    Sketcher.Constraint("Coincident", 0, 2, 1, 1),
    Sketcher.Constraint("Coincident", 1, 2, 2, 1),
    Sketcher.Constraint("Coincident", 2, 2, 3, 1),
    Sketcher.Constraint("Coincident", 3, 2, 0, 1),
    Sketcher.Constraint("Vertical", 0),
    Sketcher.Constraint("Horizontal", 1),
    Sketcher.Constraint("Vertical", 2),
    Sketcher.Constraint("Horizontal", 3),
    Sketcher.Constraint("DistanceX", 1, 1, 1, 2, 20.0),
    Sketcher.Constraint("DistanceY", 0, 1, 0, 2, 6.0),
    Sketcher.Constraint("DistanceX", 0, 2, -1, 1, 10.0),
    Sketcher.Constraint("DistanceY", 0, 2, -1, 1, 15.5),
])
pad4 = body.newObject("PartDesign::Pad", "Pad003")
pad4.Profile = sketch5
pad4.Length = 5.5
pad4.Reversed = True

sketch6 = body.newObject("Sketcher::SketchObject", "Sketch005")
sketch6.AttachmentSupport = (doc.getObject("XZ_Plane"), [""])
sketch6.MapMode = "FlatFace"
sketch6.AttachmentOffset = App.Placement(App.Vector(0, 0, -5), App.Rotation())
sketch6.addGeometry([
    Part.LineSegment(App.Vector(-30, -10, 0), App.Vector(-30, 10, 0)),
    Part.LineSegment(App.Vector(-30, 10, 0), App.Vector(-25.5, 5.5, 0)),
    Part.LineSegment(App.Vector(-25.5, 5.5, 0), App.Vector(-20, 11, 0)),
    Part.LineSegment(App.Vector(-20, 11, 0), App.Vector(-19.4, 10.4, 0)),
    Part.LineSegment(App.Vector(-19.4, 10.4, 0), App.Vector(-11.5, 18.3, 0)),
    Part.LineSegment(App.Vector(-11.5, 18.3, 0), App.Vector(-15.6, 22.5, 0)),
    Part.LineSegment(App.Vector(-15.6, 22.5, 0), App.Vector(15.6, 22.5, 0)),
    Part.LineSegment(App.Vector(15.6, 22.5, 0), App.Vector(11.5, 18.3, 0)),
    Part.LineSegment(App.Vector(11.5, 18.3, 0), App.Vector(19.4, 10.4, 0)),
    Part.LineSegment(App.Vector(19.4, 10.4, 0), App.Vector(20, 11, 0)),
    Part.LineSegment(App.Vector(20, 11, 0), App.Vector(25.5, 5.5, 0)),
    Part.LineSegment(App.Vector(25.5, 5.5, 0), App.Vector(30, 10, 0)),
    Part.LineSegment(App.Vector(30, 10, 0), App.Vector(30, -10, 0)),
    Part.LineSegment(App.Vector(30, -10, 0), App.Vector(25.5, -5.5, 0)),
    Part.LineSegment(App.Vector(25.5, -5.5, 0), App.Vector(20, -11, 0)),
    Part.LineSegment(App.Vector(20, -11, 0), App.Vector(19.4, -10.4, 0)),
    Part.LineSegment(App.Vector(19.4, -10.4, 0), App.Vector(10.8, -19, 0)),
    Part.LineSegment(App.Vector(10.8, -19, 0), App.Vector(10.2, -19, 0)),
    Part.LineSegment(App.Vector(10.2, -19, 0), App.Vector(10.2, -15.3, 0)),
    Part.LineSegment(App.Vector(10.2, -15.3, 0), App.Vector(-10.2, -15.3, 0)),
    Part.LineSegment(App.Vector(-10.2, -15.3, 0), App.Vector(-10.2, -19, 0)),
    Part.LineSegment(App.Vector(-10.2, -19, 0), App.Vector(-10.8, -19, 0)),
    Part.LineSegment(App.Vector(-10.8, -19, 0), App.Vector(-19.4, -10.4, 0)),
    Part.LineSegment(App.Vector(-19.4, -10.4, 0), App.Vector(-20, -11, 0)),
    Part.LineSegment(App.Vector(-20, -11, 0), App.Vector(-25.5, -5.5, 0)),
    Part.LineSegment(App.Vector(-25.5, -5.5, 0), App.Vector(-30, -10, 0)),
    Part.ArcOfCircle(Part.Circle(App.Vector(-16, 0, 0), App.Vector(0, 0, 1), 3), math.radians(135), math.radians(225)),
    Part.LineSegment(App.Vector(-18.1, -2.1, 0), App.Vector(-13.6, -6.6, 0)),
    Part.ArcOfCircle(Part.Circle(App.Vector(-11.5, -4.6, 0), App.Vector(0, 0, 1), 2.9), math.radians(-135), math.radians(-90)),
    Part.LineSegment(App.Vector(-11.5, -7.5, 0), App.Vector(11.5, -7.5, 0)),
    Part.ArcOfCircle(Part.Circle(App.Vector(11.5, -4.6, 0), App.Vector(0, 0, 1), 2.9), math.radians(-90), math.radians(-45)),
    Part.LineSegment(App.Vector(13.6, -6.6, 0), App.Vector(18.1, -2.1, 0)),
    Part.ArcOfCircle(Part.Circle(App.Vector(16, 0, 0), App.Vector(0, 0, 1), 3), math.radians(-45), math.radians(45)),
    Part.LineSegment(App.Vector(18.1, 2.1, 0), App.Vector(13.6, 6.6, 0)),
    Part.ArcOfCircle(Part.Circle(App.Vector(11.5, 4.6, 0), App.Vector(0, 0, 1), 2.9), math.radians(45), math.radians(90)),
    Part.LineSegment(App.Vector(11.5, 7.5, 0), App.Vector(-11.5, 7.5, 0)),
    Part.ArcOfCircle(Part.Circle(App.Vector(-11.5, 4.6, 0), App.Vector(0, 0, 1), 2.9), math.radians(90), math.radians(135)),
    Part.LineSegment(App.Vector(-13.6, 6.6, 0), App.Vector(-18.1, 2.1, 0)),
], False)
sketch6.addConstraint([
    Sketcher.Constraint("Coincident", 0, 2, 1, 1),
    Sketcher.Constraint("Coincident", 1, 2, 2, 1),
    Sketcher.Constraint("Coincident", 2, 2, 3, 1),
    Sketcher.Constraint("Coincident", 3, 2, 4, 1),
    Sketcher.Constraint("Coincident", 4, 2, 5, 1),
    Sketcher.Constraint("Coincident", 5, 2, 6, 1),
    Sketcher.Constraint("Coincident", 6, 2, 7, 1),
    Sketcher.Constraint("Coincident", 7, 2, 8, 1),
    Sketcher.Constraint("Coincident", 8, 2, 9, 1),
    Sketcher.Constraint("Coincident", 9, 2, 10, 1),
    Sketcher.Constraint("Coincident", 10, 2, 11, 1),
    Sketcher.Constraint("Coincident", 11, 2, 12, 1),
    Sketcher.Constraint("Coincident", 12, 2, 13, 1),
    Sketcher.Constraint("Coincident", 13, 2, 14, 1),
    Sketcher.Constraint("Coincident", 14, 2, 15, 1),
    Sketcher.Constraint("Coincident", 15, 2, 16, 1),
    Sketcher.Constraint("Coincident", 16, 2, 17, 1),
    Sketcher.Constraint("Coincident", 17, 2, 18, 1),
    Sketcher.Constraint("Coincident", 18, 2, 19, 1),
    Sketcher.Constraint("Coincident", 19, 2, 20, 1),
    Sketcher.Constraint("Coincident", 20, 2, 21, 1),
    Sketcher.Constraint("Coincident", 21, 2, 22, 1),
    Sketcher.Constraint("Coincident", 22, 2, 23, 1),
    Sketcher.Constraint("Coincident", 23, 2, 24, 1),
    Sketcher.Constraint("Coincident", 24, 2, 25, 1),
    Sketcher.Constraint("Coincident", 25, 2, 0, 1),
    Sketcher.Constraint("Tangent", 26, 2, 27, 1),
    Sketcher.Constraint("Tangent", 27, 2, 28, 1),
    Sketcher.Constraint("Tangent", 28, 2, 29, 1),
    Sketcher.Constraint("Tangent", 29, 2, 30, 1),
    Sketcher.Constraint("Tangent", 30, 2, 31, 1),
    Sketcher.Constraint("Tangent", 31, 2, 32, 1),
    Sketcher.Constraint("Tangent", 32, 2, 33, 1),
    Sketcher.Constraint("Tangent", 33, 2, 34, 1),
    Sketcher.Constraint("Tangent", 34, 2, 35, 1),
    Sketcher.Constraint("Tangent", 35, 2, 36, 1),
    Sketcher.Constraint("Tangent", 36, 2, 37, 1),
    Sketcher.Constraint("Tangent", 37, 2, 26, 1),
    Sketcher.Constraint("Vertical", 0),
    Sketcher.Constraint("Horizontal", 6),
    Sketcher.Constraint("Vertical", 12),
    Sketcher.Constraint("Horizontal", 17),
    Sketcher.Constraint("Vertical", 18),
    Sketcher.Constraint("Horizontal", 19),
    Sketcher.Constraint("Vertical", 20),
    Sketcher.Constraint("Horizontal", 21),
    Sketcher.Constraint("Horizontal", 29),
    Sketcher.Constraint("Horizontal", 35),
    Sketcher.Constraint("Equal", 28, 30),
    Sketcher.Constraint("Equal", 26, 32),
    Sketcher.Constraint("Equal", 30, 34),
    Sketcher.Constraint("Equal", 34, 36),
    Sketcher.Constraint("Symmetric", 26, 3, 32, 3, -1, 1),
    Sketcher.Constraint("Symmetric", 28, 3, 34, 3, -1, 1),
    Sketcher.Constraint("Symmetric", 0, 2, 12, 2, -1, 1),
    Sketcher.Constraint("Symmetric", 1, 2, 13, 2, -1, 1),
    Sketcher.Constraint("Symmetric", 2, 2, 14, 2, -1, 1),
    Sketcher.Constraint("Symmetric", 3, 2, 15, 2, -1, 1),
    Sketcher.Constraint("Symmetric", 8, 2, 22, 2, -1, 1),
    Sketcher.Constraint("Symmetric", 9, 2, 23, 2, -1, 1),
    Sketcher.Constraint("Symmetric", 10, 2, 24, 2, -1, 1),
    Sketcher.Constraint("Symmetric", 4, 2, 7, 2, -2),
    Sketcher.Constraint("Symmetric", 3, 2, 8, 2, -2),
    Sketcher.Constraint("Symmetric", 2, 2, 9, 2, -2),
    Sketcher.Constraint("Symmetric", 1, 2, 10, 2, -2),
    Sketcher.Constraint("Symmetric", 17, 2, 20, 2, -2),
    Sketcher.Constraint("Symmetric", 27, 2, 30, 2, -2),
    Sketcher.Constraint("Perpendicular", 1, 2),
    Sketcher.Constraint("Perpendicular", 2, 3),
    Sketcher.Constraint("Perpendicular", 3, 4),
    Sketcher.Constraint("Perpendicular", 4, 5),
    Sketcher.Constraint("Perpendicular", 5, 7),
    Sketcher.Constraint("Perpendicular", 7, 8),
    Sketcher.Constraint("Perpendicular", 10, 11),
    Sketcher.Constraint("Perpendicular", 15, 16),
    Sketcher.Constraint("Perpendicular", 16, 22),
    Sketcher.Constraint("Perpendicular", 24, 25),
    Sketcher.Constraint("Perpendicular", 25, 27),
    Sketcher.Constraint("Perpendicular", 33, 37),
    Sketcher.Constraint("Radius", 26, 3.0),
    Sketcher.Constraint("DistanceY", 0, 1, 0, 2, 20.0),
    Sketcher.Constraint("DistanceX", 19, 2, 19, 1, 20.4),
    Sketcher.Constraint("DistanceY", 18, 1, 18, 2, 3.7),
    Sketcher.Constraint("DistanceX", 26, 3, -1, 1, 16.0),
    Sketcher.Constraint("DistanceX", 0, 2, -1, 1, 30.0),
    Sketcher.Constraint("DistanceY", 16, 2, -1, 1, 19.0),
    Sketcher.Constraint("Distance", 1, 6.4),
    Sketcher.Constraint("Distance", 2, 7.8),
    Sketcher.Constraint("Distance", 3, 0.8),
    Sketcher.Constraint("Distance", 4, 11.2),
    Sketcher.Constraint("DistanceY", -1, 1, 5, 2, 22.5),
    Sketcher.Constraint("DistanceY", 28, 2, -1, 1, 7.5),
    Sketcher.Constraint("Radius", 28, 2.941054),
])
pad5 = body.newObject("PartDesign::Pad", "Pad004")
pad5.Profile = sketch6
pad5.Length = 4.3
pad5.Reversed = True

sketch7 = body.newObject("Sketcher::SketchObject", "Sketch006")
sketch7.AttachmentSupport = (doc.getObject("XZ_Plane"), [""])
sketch7.MapMode = "FlatFace"
sketch7.AttachmentOffset = App.Placement(App.Vector(0, 0, -9.3), App.Rotation())
sketch7.addGeometry([
    Part.Circle(App.Vector(-4.5, 14.5, 0), App.Vector(0, 0, 1), 1.8),
    Part.Circle(App.Vector(4.5, 14.5, 0), App.Vector(0, 0, 1), 1.8),
], False)
sketch7.addConstraint([
    Sketcher.Constraint("Equal", 0, 1),
    Sketcher.Constraint("Symmetric", 0, 3, 1, 3, -2),
    Sketcher.Constraint("Diameter", 0, 3.5),
    Sketcher.Constraint("DistanceX", 0, 3, 1, 3, 9.0),
    Sketcher.Constraint("DistanceY", -1, 1, 0, 3, 14.5),
])
pad6 = body.newObject("PartDesign::Pad", "Pad005")
pad6.Profile = sketch7
pad6.Length = 6
pad6.Reversed = True

doc.recompute()
